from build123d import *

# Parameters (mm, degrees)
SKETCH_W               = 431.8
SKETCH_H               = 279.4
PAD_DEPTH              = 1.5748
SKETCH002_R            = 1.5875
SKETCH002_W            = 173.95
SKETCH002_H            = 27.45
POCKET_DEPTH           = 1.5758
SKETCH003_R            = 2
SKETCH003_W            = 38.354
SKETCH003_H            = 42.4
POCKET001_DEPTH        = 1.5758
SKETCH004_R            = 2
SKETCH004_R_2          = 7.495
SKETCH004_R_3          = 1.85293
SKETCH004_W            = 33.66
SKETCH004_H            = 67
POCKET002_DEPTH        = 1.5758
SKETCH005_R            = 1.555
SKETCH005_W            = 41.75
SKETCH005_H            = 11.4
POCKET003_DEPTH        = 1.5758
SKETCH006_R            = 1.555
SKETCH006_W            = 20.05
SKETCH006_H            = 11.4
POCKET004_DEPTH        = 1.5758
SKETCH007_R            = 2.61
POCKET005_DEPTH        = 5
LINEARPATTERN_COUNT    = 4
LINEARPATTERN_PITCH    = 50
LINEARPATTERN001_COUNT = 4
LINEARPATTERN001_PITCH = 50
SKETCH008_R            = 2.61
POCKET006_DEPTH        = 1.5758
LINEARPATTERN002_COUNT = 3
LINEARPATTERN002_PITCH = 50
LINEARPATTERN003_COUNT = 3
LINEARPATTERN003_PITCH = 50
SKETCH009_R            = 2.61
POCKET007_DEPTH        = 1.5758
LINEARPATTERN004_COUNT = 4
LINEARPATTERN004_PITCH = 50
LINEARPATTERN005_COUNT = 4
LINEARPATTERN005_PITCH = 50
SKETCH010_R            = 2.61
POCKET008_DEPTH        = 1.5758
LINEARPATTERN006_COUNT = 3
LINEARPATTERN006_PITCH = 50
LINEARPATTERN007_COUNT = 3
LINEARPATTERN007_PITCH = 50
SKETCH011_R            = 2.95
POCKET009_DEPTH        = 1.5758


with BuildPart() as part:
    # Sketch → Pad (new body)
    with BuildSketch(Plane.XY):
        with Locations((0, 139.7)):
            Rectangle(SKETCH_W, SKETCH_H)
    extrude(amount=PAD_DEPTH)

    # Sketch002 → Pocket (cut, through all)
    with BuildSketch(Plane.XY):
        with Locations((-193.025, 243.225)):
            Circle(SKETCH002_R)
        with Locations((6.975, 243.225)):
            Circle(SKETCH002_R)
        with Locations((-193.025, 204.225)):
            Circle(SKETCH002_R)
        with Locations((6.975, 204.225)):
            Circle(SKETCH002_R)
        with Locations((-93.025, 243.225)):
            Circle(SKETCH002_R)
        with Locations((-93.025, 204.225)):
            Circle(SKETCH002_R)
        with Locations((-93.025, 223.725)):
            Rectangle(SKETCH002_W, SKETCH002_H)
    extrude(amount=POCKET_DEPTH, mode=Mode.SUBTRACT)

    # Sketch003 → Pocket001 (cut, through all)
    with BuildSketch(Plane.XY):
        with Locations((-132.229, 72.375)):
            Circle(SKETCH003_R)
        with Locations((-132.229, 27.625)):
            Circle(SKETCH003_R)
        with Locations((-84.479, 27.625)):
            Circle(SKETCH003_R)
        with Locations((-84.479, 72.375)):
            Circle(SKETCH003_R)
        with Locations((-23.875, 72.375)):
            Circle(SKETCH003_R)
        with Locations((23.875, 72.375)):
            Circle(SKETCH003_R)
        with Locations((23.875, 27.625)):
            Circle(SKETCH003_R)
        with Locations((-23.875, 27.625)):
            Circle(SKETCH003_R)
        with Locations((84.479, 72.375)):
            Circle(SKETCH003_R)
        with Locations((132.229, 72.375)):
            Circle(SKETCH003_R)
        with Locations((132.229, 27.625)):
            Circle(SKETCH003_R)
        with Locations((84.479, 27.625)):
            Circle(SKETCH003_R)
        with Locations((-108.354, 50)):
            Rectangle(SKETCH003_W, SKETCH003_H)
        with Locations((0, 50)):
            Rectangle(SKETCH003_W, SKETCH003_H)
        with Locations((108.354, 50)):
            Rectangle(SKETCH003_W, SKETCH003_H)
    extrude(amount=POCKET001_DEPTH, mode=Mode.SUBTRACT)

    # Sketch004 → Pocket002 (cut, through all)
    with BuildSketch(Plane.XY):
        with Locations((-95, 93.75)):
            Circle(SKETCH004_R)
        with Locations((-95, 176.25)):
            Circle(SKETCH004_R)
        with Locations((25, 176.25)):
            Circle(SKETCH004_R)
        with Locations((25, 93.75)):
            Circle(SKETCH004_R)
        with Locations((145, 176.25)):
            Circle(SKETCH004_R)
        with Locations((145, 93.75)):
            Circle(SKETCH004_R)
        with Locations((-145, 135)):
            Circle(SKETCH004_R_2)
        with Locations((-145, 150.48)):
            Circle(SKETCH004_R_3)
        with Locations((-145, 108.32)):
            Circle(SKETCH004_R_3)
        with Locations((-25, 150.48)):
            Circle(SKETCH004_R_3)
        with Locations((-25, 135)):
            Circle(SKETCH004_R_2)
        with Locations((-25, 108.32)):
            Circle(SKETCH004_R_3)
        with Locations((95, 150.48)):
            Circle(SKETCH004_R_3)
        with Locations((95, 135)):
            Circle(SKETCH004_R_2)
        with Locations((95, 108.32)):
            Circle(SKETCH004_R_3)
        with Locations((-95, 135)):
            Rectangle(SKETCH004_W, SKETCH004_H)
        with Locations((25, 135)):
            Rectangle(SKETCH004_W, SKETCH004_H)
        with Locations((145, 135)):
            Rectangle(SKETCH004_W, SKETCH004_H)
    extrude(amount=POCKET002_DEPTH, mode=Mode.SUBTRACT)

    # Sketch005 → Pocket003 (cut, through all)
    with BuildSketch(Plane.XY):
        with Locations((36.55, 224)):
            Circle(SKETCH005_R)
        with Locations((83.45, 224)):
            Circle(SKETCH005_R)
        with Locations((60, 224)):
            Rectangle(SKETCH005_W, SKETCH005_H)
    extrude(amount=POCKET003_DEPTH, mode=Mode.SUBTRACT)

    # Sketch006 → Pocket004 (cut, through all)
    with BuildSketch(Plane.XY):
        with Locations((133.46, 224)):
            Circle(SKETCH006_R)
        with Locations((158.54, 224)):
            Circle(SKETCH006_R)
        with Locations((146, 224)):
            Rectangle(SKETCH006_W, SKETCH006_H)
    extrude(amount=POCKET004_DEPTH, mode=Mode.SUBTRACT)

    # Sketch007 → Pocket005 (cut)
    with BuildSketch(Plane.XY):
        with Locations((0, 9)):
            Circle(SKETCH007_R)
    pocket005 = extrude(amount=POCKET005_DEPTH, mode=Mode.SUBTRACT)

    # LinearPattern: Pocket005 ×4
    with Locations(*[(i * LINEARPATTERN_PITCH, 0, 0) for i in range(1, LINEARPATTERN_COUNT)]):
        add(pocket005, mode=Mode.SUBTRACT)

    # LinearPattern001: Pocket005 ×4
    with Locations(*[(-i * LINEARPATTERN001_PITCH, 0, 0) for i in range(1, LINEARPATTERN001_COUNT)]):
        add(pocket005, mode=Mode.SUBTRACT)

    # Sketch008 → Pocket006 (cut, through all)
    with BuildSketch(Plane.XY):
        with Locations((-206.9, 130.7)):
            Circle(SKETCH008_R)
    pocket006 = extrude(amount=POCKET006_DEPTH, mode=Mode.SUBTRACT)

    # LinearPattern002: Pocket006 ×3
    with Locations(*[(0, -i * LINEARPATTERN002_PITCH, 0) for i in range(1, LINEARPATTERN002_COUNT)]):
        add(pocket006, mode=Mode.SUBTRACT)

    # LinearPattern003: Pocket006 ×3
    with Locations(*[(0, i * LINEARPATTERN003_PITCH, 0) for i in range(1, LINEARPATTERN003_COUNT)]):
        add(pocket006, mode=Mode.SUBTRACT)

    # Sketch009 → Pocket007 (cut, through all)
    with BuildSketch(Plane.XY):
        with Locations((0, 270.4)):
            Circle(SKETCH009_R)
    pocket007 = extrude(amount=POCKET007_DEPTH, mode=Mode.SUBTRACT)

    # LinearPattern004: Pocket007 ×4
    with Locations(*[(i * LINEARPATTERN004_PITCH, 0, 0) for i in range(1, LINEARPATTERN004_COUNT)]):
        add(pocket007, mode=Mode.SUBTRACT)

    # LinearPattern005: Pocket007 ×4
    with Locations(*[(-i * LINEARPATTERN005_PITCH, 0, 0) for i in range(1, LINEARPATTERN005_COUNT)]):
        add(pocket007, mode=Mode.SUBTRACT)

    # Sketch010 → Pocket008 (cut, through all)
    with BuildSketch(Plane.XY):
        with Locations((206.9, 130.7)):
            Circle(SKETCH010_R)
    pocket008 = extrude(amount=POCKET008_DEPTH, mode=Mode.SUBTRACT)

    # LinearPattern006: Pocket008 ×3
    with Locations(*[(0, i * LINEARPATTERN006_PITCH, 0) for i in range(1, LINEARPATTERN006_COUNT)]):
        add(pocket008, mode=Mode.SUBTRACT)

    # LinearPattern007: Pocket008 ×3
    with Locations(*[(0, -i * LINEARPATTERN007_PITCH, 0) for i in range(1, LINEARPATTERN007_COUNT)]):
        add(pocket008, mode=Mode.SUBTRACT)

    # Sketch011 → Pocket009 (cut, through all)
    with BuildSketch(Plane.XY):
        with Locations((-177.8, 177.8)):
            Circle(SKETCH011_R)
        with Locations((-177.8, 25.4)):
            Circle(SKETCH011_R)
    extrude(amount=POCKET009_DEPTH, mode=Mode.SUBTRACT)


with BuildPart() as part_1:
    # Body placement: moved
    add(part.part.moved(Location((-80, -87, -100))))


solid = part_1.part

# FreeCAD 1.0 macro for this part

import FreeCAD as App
import Part
import Sketcher
from FreeCAD import Vector


def add_polygon(sketch, points):
    """Adds a closed chain of lines whose ends are joined by coincident constraints."""
    first, n = sketch.GeometryCount, len(points)
    for a, b in zip(points, points[1:] + points[:1]):
        sketch.addGeometry(Part.LineSegment(App.Vector(*a, 0), App.Vector(*b, 0)), False)
    for i in range(n):
        sketch.addConstraint(Sketcher.Constraint("Coincident", first + i, 2, first + (i + 1) % n, 1))

doc = App.newDocument("Part")
params = doc.addObject("Spreadsheet::Sheet", "Params")
for row, (alias, value) in enumerate([
    ("sketch1_width", "431.8 mm"),
    ("sketch1_height", "279.4 mm"),
    ("pad1_length", "1.5748 mm"),
    ("sketch2_width", "173.95 mm"),
    ("sketch2_height", "27.45 mm"),
    ("sketch3_diameter", "4 mm"),
    ("sketch3_height", "42.4 mm"),
    ("sketch4_diameter", "4 mm"),
    ("sketch4_diameter2", "14.99 mm"),
    ("sketch4_height", "67 mm"),
    ("sketch4_width", "33.66 mm"),
    ("sketch5_diameter", "3.11 mm"),
    ("sketch5_height", "11.4 mm"),
    ("sketch5_width", "41.75 mm"),
    ("sketch6_diameter", "3.11 mm"),
    ("sketch6_height", "11.4 mm"),
    ("sketch6_width", "20.05 mm"),
    ("sketch7_diameter", "5.22 mm"),
    ("pocket6_length", "5 mm"),
    ("linearpattern_pitch", "50 mm"),
    ("linearpattern2_pitch", "50 mm"),
    ("sketch8_diameter", "5.22 mm"),
    ("linearpattern3_pitch", "50 mm"),
    ("linearpattern4_pitch", "50 mm"),
    ("sketch9_diameter", "5.22 mm"),
    ("linearpattern5_pitch", "50 mm"),
    ("linearpattern6_pitch", "50 mm"),
    ("sketch10_diameter", "5.22 mm"),
    ("linearpattern7_pitch", "50 mm"),
    ("linearpattern8_pitch", "50 mm"),
    ("sketch11_diameter", "5.9 mm"),
], start=1):
    params.set(f"A{row}", alias)
    params.set(f"B{row}", "=" + value)
    params.setAlias(f"B{row}", alias)

body = doc.addObject("PartDesign::Body", "Body")

sketch1 = body.newObject("Sketcher::SketchObject", "Sketch")
sketch1.AttachmentSupport = (doc.getObject("XY_Plane"), [""])
sketch1.MapMode = "FlatFace"
add_polygon(sketch1, [(-216, 279), (-216, 0), (216, 0), (216, 279)])
sketch1.addConstraint([
    Sketcher.Constraint("Vertical", 0),
    Sketcher.Constraint("Horizontal", 1),
    Sketcher.Constraint("Vertical", 2),
    Sketcher.Constraint("Horizontal", 3),
    Sketcher.Constraint("Symmetric", 0, 2, 1, 2, -1, 1),
    Sketcher.Constraint("DistanceX", 1, 1, 1, 2, 431.8),
    Sketcher.Constraint("DistanceY", 0, 2, 0, 1, 279.4),
])
sketch1.setExpression("Constraints[9]", "Params.sketch1_width")
sketch1.setExpression("Constraints[10]", "Params.sketch1_height")
pad1 = body.newObject("PartDesign::Pad", "Pad")
pad1.Profile = sketch1
pad1.setExpression("Length", "Params.pad1_length")

sketch2 = body.newObject("Sketcher::SketchObject", "Sketch001")
sketch2.AttachmentSupport = (doc.getObject("XY_Plane"), [""])
sketch2.MapMode = "FlatFace"
sketch2.addGeometry(Part.Circle(Vector(-193, 243.2, 0), Vector(0, 0, 1), 1.6), False)
sketch2.addGeometry(Part.Circle(Vector(7, 243.2, 0), Vector(0, 0, 1), 1.6), False)
sketch2.addGeometry(Part.Circle(Vector(-193, 204.2, 0), Vector(0, 0, 1), 1.6), False)
sketch2.addGeometry(Part.Circle(Vector(7, 204.2, 0), Vector(0, 0, 1), 1.6), False)
sketch2.addGeometry(Part.Circle(Vector(-93, 243.2, 0), Vector(0, 0, 1), 1.6), False)
sketch2.addGeometry(Part.Circle(Vector(-93, 204.2, 0), Vector(0, 0, 1), 1.6), False)
add_polygon(sketch2, [(-180, 237.4), (-180, 210), (-6, 210), (-6, 237.4)])
sketch2.addConstraint([
    Sketcher.Constraint("Vertical", 6),
    Sketcher.Constraint("Horizontal", 7),
    Sketcher.Constraint("Vertical", 8),
    Sketcher.Constraint("Horizontal", 9),
    Sketcher.Constraint("Equal", 0, 1),
    Sketcher.Constraint("Equal", 1, 2),
    Sketcher.Constraint("Equal", 2, 3),
    Sketcher.Constraint("Equal", 3, 4),
    Sketcher.Constraint("Equal", 4, 5),
    Sketcher.Constraint("Horizontal", 0, 3, 1, 3),
    Sketcher.Constraint("Horizontal", 2, 3, 3, 3),
    Sketcher.Constraint("Horizontal", 1, 3, 4, 3),
    Sketcher.Constraint("Horizontal", 3, 3, 5, 3),
    Sketcher.Constraint("Vertical", 0, 3, 2, 3),
    Sketcher.Constraint("Vertical", 1, 3, 3, 3),
    Sketcher.Constraint("Vertical", 4, 3, 5, 3),
    Sketcher.Constraint("Diameter", 0, 3.175),
    Sketcher.Constraint("DistanceX", 6, 2, -1, 1, 180.0),
    Sketcher.Constraint("DistanceY", -1, 1, 6, 2, 210.0),
    Sketcher.Constraint("DistanceX", 0, 3, 1, 3, 200.0),
    Sketcher.Constraint("DistanceY", 2, 3, 0, 3, 39.0),
    Sketcher.Constraint("DistanceX", 0, 3, 4, 3, 100.0),
    Sketcher.Constraint("DistanceX", 7, 1, 7, 2, 173.95),
    Sketcher.Constraint("DistanceY", 6, 2, 6, 1, 27.45),
    Sketcher.Constraint("DistanceX", 0, 3, -1, 1, 193.025),
    Sketcher.Constraint("DistanceY", -1, 1, 0, 3, 243.225),
])
sketch2.setExpression("Constraints[26]", "Params.sketch2_width")
sketch2.setExpression("Constraints[27]", "Params.sketch2_height")
pocket1 = body.newObject("PartDesign::Pocket", "Pocket")
pocket1.Profile = sketch2
pocket1.Type = "ThroughAll"
pocket1.Reversed = True

sketch3 = body.newObject("Sketcher::SketchObject", "Sketch002")
sketch3.AttachmentSupport = (doc.getObject("XY_Plane"), [""])
sketch3.MapMode = "FlatFace"
sketch3.addGeometry(Part.Circle(Vector(-132.2, 72.4, 0), Vector(0, 0, 1), 2), False)
sketch3.addGeometry(Part.Circle(Vector(-132.2, 27.6, 0), Vector(0, 0, 1), 2), False)
sketch3.addGeometry(Part.Circle(Vector(-84.5, 27.6, 0), Vector(0, 0, 1), 2), False)
sketch3.addGeometry(Part.Circle(Vector(-84.5, 72.4, 0), Vector(0, 0, 1), 2), False)
sketch3.addGeometry(Part.Circle(Vector(-23.9, 72.4, 0), Vector(0, 0, 1), 2), False)
sketch3.addGeometry(Part.Circle(Vector(23.9, 72.4, 0), Vector(0, 0, 1), 2), False)
sketch3.addGeometry(Part.Circle(Vector(23.9, 27.6, 0), Vector(0, 0, 1), 2), False)
sketch3.addGeometry(Part.Circle(Vector(-23.9, 27.6, 0), Vector(0, 0, 1), 2), False)
sketch3.addGeometry(Part.Circle(Vector(84.5, 72.4, 0), Vector(0, 0, 1), 2), False)
sketch3.addGeometry(Part.Circle(Vector(132.2, 72.4, 0), Vector(0, 0, 1), 2), False)
sketch3.addGeometry(Part.Circle(Vector(132.2, 27.6, 0), Vector(0, 0, 1), 2), False)
sketch3.addGeometry(Part.Circle(Vector(84.5, 27.6, 0), Vector(0, 0, 1), 2), False)
add_polygon(sketch3, [(-127.5, 71.2), (-127.5, 28.8), (-89.2, 28.8), (-89.2, 71.2)])
add_polygon(sketch3, [(-19.2, 71.2), (-19.2, 28.8), (19.2, 28.8), (19.2, 71.2)])
add_polygon(sketch3, [(89.2, 71.2), (89.2, 28.8), (127.5, 28.8), (127.5, 71.2)])
sketch3.addConstraint([
    Sketcher.Constraint("Vertical", 12),
    Sketcher.Constraint("Horizontal", 13),
    Sketcher.Constraint("Vertical", 14),
    Sketcher.Constraint("Horizontal", 15),
    Sketcher.Constraint("Vertical", 16),
    Sketcher.Constraint("Horizontal", 17),
    Sketcher.Constraint("Vertical", 18),
    Sketcher.Constraint("Horizontal", 19),
    Sketcher.Constraint("Vertical", 20),
    Sketcher.Constraint("Horizontal", 21),
    Sketcher.Constraint("Vertical", 22),
    Sketcher.Constraint("Horizontal", 23),
    Sketcher.Constraint("Equal", 0, 1),
    Sketcher.Constraint("Equal", 1, 2),
    Sketcher.Constraint("Equal", 2, 3),
    Sketcher.Constraint("Equal", 3, 4),
    Sketcher.Constraint("Equal", 4, 5),
    Sketcher.Constraint("Equal", 5, 6),
    Sketcher.Constraint("Equal", 6, 7),
    Sketcher.Constraint("Equal", 7, 8),
    Sketcher.Constraint("Equal", 8, 9),
    Sketcher.Constraint("Equal", 9, 10),
    Sketcher.Constraint("Equal", 10, 11),
    Sketcher.Constraint("Symmetric", 4, 3, 5, 3, -2),
    Sketcher.Constraint("Symmetric", 6, 3, 7, 3, -2),
    Sketcher.Constraint("Symmetric", 3, 3, 8, 3, -2),
    Sketcher.Constraint("Symmetric", 0, 3, 9, 3, -2),
    Sketcher.Constraint("Symmetric", 1, 3, 10, 3, -2),
    Sketcher.Constraint("Symmetric", 2, 3, 11, 3, -2),
    Sketcher.Constraint("Symmetric", 13, 2, 20, 2, -2),
    Sketcher.Constraint("Symmetric", 15, 2, 22, 2, -2),
    Sketcher.Constraint("Horizontal", 1, 3, 2, 3),
    Sketcher.Constraint("Horizontal", 0, 3, 3, 3),
    Sketcher.Constraint("Horizontal", 3, 3, 4, 3),
    Sketcher.Constraint("Horizontal", 2, 3, 6, 3),
    Sketcher.Constraint("Horizontal", 13, 2, 16, 2),
    Sketcher.Constraint("Horizontal", 15, 2, 18, 2),
    Sketcher.Constraint("Vertical", 0, 3, 1, 3),
    Sketcher.Constraint("Vertical", 2, 3, 3, 3),
    Sketcher.Constraint("Vertical", 5, 3, 6, 3),
    Sketcher.Constraint("Equal", 15, 17),
    Sketcher.Constraint("Diameter", 0, 4.0),
    Sketcher.Constraint("DistanceY", 12, 2, 12, 1, 42.4),
    Sketcher.Constraint("DistanceY", -1, 1, 12, 2, 28.8),
    Sketcher.Constraint("DistanceX", 13, 1, 13, 2, 38.354),
    Sketcher.Constraint("DistanceY", 1, 3, 0, 3, 44.75),
    Sketcher.Constraint("DistanceX", 1, 3, 2, 3, 47.75),
    Sketcher.Constraint("DistanceX", 4, 3, 5, 3, 47.75),
    Sketcher.Constraint("DistanceX", 0, 3, -1, 1, 132.229),
    Sketcher.Constraint("DistanceY", -1, 1, 0, 3, 72.375),
    Sketcher.Constraint("DistanceX", 12, 2, -1, 1, 127.531),
    Sketcher.Constraint("DistanceX", 16, 2, -1, 1, 19.177),
])
sketch3.setExpression("Constraints[53]", "Params.sketch3_diameter")
sketch3.setExpression("Constraints[54]", "Params.sketch3_height")
pocket2 = body.newObject("PartDesign::Pocket", "Pocket001")
pocket2.Profile = sketch3
pocket2.Type = "ThroughAll"
pocket2.Reversed = True

sketch4 = body.newObject("Sketcher::SketchObject", "Sketch003")
sketch4.AttachmentSupport = (doc.getObject("XY_Plane"), [""])
sketch4.MapMode = "FlatFace"
sketch4.addGeometry(Part.Circle(Vector(-95, 93.8, 0), Vector(0, 0, 1), 2), False)
sketch4.addGeometry(Part.Circle(Vector(-95, 176.2, 0), Vector(0, 0, 1), 2), False)
sketch4.addGeometry(Part.Circle(Vector(25, 176.2, 0), Vector(0, 0, 1), 2), False)
sketch4.addGeometry(Part.Circle(Vector(25, 93.8, 0), Vector(0, 0, 1), 2), False)
sketch4.addGeometry(Part.Circle(Vector(145, 176.2, 0), Vector(0, 0, 1), 2), False)
sketch4.addGeometry(Part.Circle(Vector(145, 93.8, 0), Vector(0, 0, 1), 2), False)
sketch4.addGeometry(Part.Circle(Vector(-145, 135, 0), Vector(0, 0, 1), 7.5), False)
sketch4.addGeometry(Part.Circle(Vector(-145, 150.5, 0), Vector(0, 0, 1), 1.9), False)
sketch4.addGeometry(Part.Circle(Vector(-145, 108.3, 0), Vector(0, 0, 1), 1.9), False)
sketch4.addGeometry(Part.Circle(Vector(-25, 150.5, 0), Vector(0, 0, 1), 1.9), False)
sketch4.addGeometry(Part.Circle(Vector(-25, 135, 0), Vector(0, 0, 1), 7.5), False)
sketch4.addGeometry(Part.Circle(Vector(-25, 108.3, 0), Vector(0, 0, 1), 1.9), False)
sketch4.addGeometry(Part.Circle(Vector(95, 150.5, 0), Vector(0, 0, 1), 1.9), False)
sketch4.addGeometry(Part.Circle(Vector(95, 135, 0), Vector(0, 0, 1), 7.5), False)
sketch4.addGeometry(Part.Circle(Vector(95, 108.3, 0), Vector(0, 0, 1), 1.9), False)
add_polygon(sketch4, [(-111.8, 168.5), (-111.8, 101.5), (-78.2, 101.5), (-78.2, 168.5)])
add_polygon(sketch4, [(8.2, 168.5), (8.2, 101.5), (41.8, 101.5), (41.8, 168.5)])
add_polygon(sketch4, [(128.2, 168.5), (128.2, 101.5), (161.8, 101.5), (161.8, 168.5)])
sketch4.addConstraint([
    Sketcher.Constraint("Vertical", 15),
    Sketcher.Constraint("Horizontal", 16),
    Sketcher.Constraint("Vertical", 17),
    Sketcher.Constraint("Horizontal", 18),
    Sketcher.Constraint("Vertical", 19),
    Sketcher.Constraint("Horizontal", 20),
    Sketcher.Constraint("Vertical", 21),
    Sketcher.Constraint("Horizontal", 22),
    Sketcher.Constraint("Vertical", 23),
    Sketcher.Constraint("Horizontal", 24),
    Sketcher.Constraint("Vertical", 25),
    Sketcher.Constraint("Horizontal", 26),
    Sketcher.Constraint("Equal", 0, 1),
    Sketcher.Constraint("Equal", 1, 2),
    Sketcher.Constraint("Equal", 2, 3),
    Sketcher.Constraint("Equal", 3, 4),
    Sketcher.Constraint("Equal", 4, 5),
    Sketcher.Constraint("Equal", 7, 8),
    Sketcher.Constraint("Equal", 8, 9),
    Sketcher.Constraint("Equal", 6, 10),
    Sketcher.Constraint("Equal", 9, 11),
    Sketcher.Constraint("Equal", 11, 12),
    Sketcher.Constraint("Equal", 10, 13),
    Sketcher.Constraint("Equal", 12, 14),
    Sketcher.Constraint("Horizontal", 1, 3, 2, 3),
    Sketcher.Constraint("Horizontal", 0, 3, 3, 3),
    Sketcher.Constraint("Horizontal", 2, 3, 4, 3),
    Sketcher.Constraint("Horizontal", 3, 3, 5, 3),
    Sketcher.Constraint("Horizontal", 7, 3, 9, 3),
    Sketcher.Constraint("Horizontal", 6, 3, 10, 3),
    Sketcher.Constraint("Horizontal", 8, 3, 11, 3),
    Sketcher.Constraint("Horizontal", 9, 3, 12, 3),
    Sketcher.Constraint("Horizontal", 10, 3, 13, 3),
    Sketcher.Constraint("Horizontal", 11, 3, 14, 3),
    Sketcher.Constraint("Horizontal", 16, 2, 19, 2),
    Sketcher.Constraint("Horizontal", 18, 2, 21, 2),
    Sketcher.Constraint("Horizontal", 20, 2, 23, 2),
    Sketcher.Constraint("Horizontal", 22, 2, 25, 2),
    Sketcher.Constraint("Vertical", 0, 3, 1, 3),
    Sketcher.Constraint("Vertical", 2, 3, 3, 3),
    Sketcher.Constraint("Vertical", 4, 3, 5, 3),
    Sketcher.Constraint("Vertical", 6, 3, 7, 3),
    Sketcher.Constraint("Vertical", 7, 3, 8, 3),
    Sketcher.Constraint("Vertical", 9, 3, 10, 3),
    Sketcher.Constraint("Vertical", 10, 3, 11, 3),
    Sketcher.Constraint("Vertical", 12, 3, 13, 3),
    Sketcher.Constraint("Vertical", 13, 3, 14, 3),
    Sketcher.Constraint("Equal", 18, 20),
    Sketcher.Constraint("Equal", 22, 24),
    Sketcher.Constraint("Diameter", 0, 4.0),
    Sketcher.Constraint("Diameter", 6, 14.99),
    Sketcher.Constraint("DistanceY", 15, 2, 15, 1, 67.0),
    Sketcher.Constraint("DistanceX", 0, 3, -1, 1, 95.0),
    Sketcher.Constraint("DistanceX", -1, 1, 2, 3, 25.0),
    Sketcher.Constraint("DistanceX", -1, 1, 4, 3, 145.0),
    Sketcher.Constraint("DistanceX", 6, 3, -1, 1, 145.0),
    Sketcher.Constraint("DistanceY", -1, 1, 6, 3, 135.0),
    Sketcher.Constraint("DistanceX", 9, 3, -1, 1, 25.0),
    Sketcher.Constraint("DistanceX", -1, 1, 12, 3, 95.0),
    Sketcher.Constraint("DistanceX", 16, 1, 16, 2, 33.66),
    Sketcher.Constraint("DistanceY", -1, 1, 15, 2, 101.5),
    Sketcher.Constraint("DistanceY", 0, 3, 1, 3, 82.5),
    Sketcher.Constraint("Diameter", 7, 3.70586),
    Sketcher.Constraint("DistanceY", -1, 1, 0, 3, 93.75),
    Sketcher.Constraint("DistanceY", -1, 1, 7, 3, 150.48),
    Sketcher.Constraint("DistanceY", -1, 1, 8, 3, 108.32),
    Sketcher.Constraint("DistanceX", 15, 2, -1, 1, 111.83),
    Sketcher.Constraint("DistanceX", -1, 1, 19, 2, 8.17),
    Sketcher.Constraint("DistanceX", -1, 1, 23, 2, 128.17),
])
sketch4.setExpression("Constraints[61]", "Params.sketch4_diameter")
sketch4.setExpression("Constraints[62]", "Params.sketch4_diameter2")
sketch4.setExpression("Constraints[63]", "Params.sketch4_height")
sketch4.setExpression("Constraints[71]", "Params.sketch4_width")
pocket3 = body.newObject("PartDesign::Pocket", "Pocket002")
pocket3.Profile = sketch4
pocket3.Type = "ThroughAll"
pocket3.Reversed = True

sketch5 = body.newObject("Sketcher::SketchObject", "Sketch004")
sketch5.AttachmentSupport = (doc.getObject("XY_Plane"), [""])
sketch5.MapMode = "FlatFace"
sketch5.addGeometry(Part.Circle(Vector(36.5, 224, 0), Vector(0, 0, 1), 1.6), False)
sketch5.addGeometry(Part.Circle(Vector(83.5, 224, 0), Vector(0, 0, 1), 1.6), False)
add_polygon(sketch5, [(39.1, 229.7), (39.1, 218.3), (80.9, 218.3), (80.9, 229.7)])
sketch5.addConstraint([
    Sketcher.Constraint("Vertical", 2),
    Sketcher.Constraint("Horizontal", 3),
    Sketcher.Constraint("Vertical", 4),
    Sketcher.Constraint("Horizontal", 5),
    Sketcher.Constraint("Equal", 0, 1),
    Sketcher.Constraint("Horizontal", 0, 3, 1, 3),
    Sketcher.Constraint("Diameter", 0, 3.11),
    Sketcher.Constraint("DistanceY", 2, 2, 2, 1, 11.4),
    Sketcher.Constraint("DistanceY", -1, 1, 0, 3, 224.0),
    Sketcher.Constraint("DistanceX", 3, 1, 3, 2, 41.75),
    Sketcher.Constraint("DistanceY", -1, 1, 2, 2, 218.3),
    Sketcher.Constraint("DistanceX", 0, 3, 1, 3, 46.9),
    Sketcher.Constraint("DistanceX", -1, 1, 0, 3, 36.55),
    Sketcher.Constraint("DistanceX", -1, 1, 2, 2, 39.125),
])
sketch5.setExpression("Constraints[10]", "Params.sketch5_diameter")
sketch5.setExpression("Constraints[11]", "Params.sketch5_height")
sketch5.setExpression("Constraints[13]", "Params.sketch5_width")
pocket4 = body.newObject("PartDesign::Pocket", "Pocket003")
pocket4.Profile = sketch5
pocket4.Type = "ThroughAll"
pocket4.Reversed = True

sketch6 = body.newObject("Sketcher::SketchObject", "Sketch005")
sketch6.AttachmentSupport = (doc.getObject("XY_Plane"), [""])
sketch6.MapMode = "FlatFace"
sketch6.addGeometry(Part.Circle(Vector(133.5, 224, 0), Vector(0, 0, 1), 1.6), False)
sketch6.addGeometry(Part.Circle(Vector(158.5, 224, 0), Vector(0, 0, 1), 1.6), False)
add_polygon(sketch6, [(136, 229.7), (136, 218.3), (156, 218.3), (156, 229.7)])
sketch6.addConstraint([
    Sketcher.Constraint("Vertical", 2),
    Sketcher.Constraint("Horizontal", 3),
    Sketcher.Constraint("Vertical", 4),
    Sketcher.Constraint("Horizontal", 5),
    Sketcher.Constraint("Equal", 0, 1),
    Sketcher.Constraint("Horizontal", 0, 3, 1, 3),
    Sketcher.Constraint("Diameter", 0, 3.11),
    Sketcher.Constraint("DistanceY", 2, 2, 2, 1, 11.4),
    Sketcher.Constraint("DistanceY", -1, 1, 0, 3, 224.0),
    Sketcher.Constraint("DistanceX", 3, 1, 3, 2, 20.05),
    Sketcher.Constraint("DistanceY", -1, 1, 2, 2, 218.3),
    Sketcher.Constraint("DistanceX", -1, 1, 0, 3, 133.46),
    Sketcher.Constraint("DistanceX", -1, 1, 1, 3, 158.54),
    Sketcher.Constraint("DistanceX", -1, 1, 2, 2, 135.975),
])
sketch6.setExpression("Constraints[10]", "Params.sketch6_diameter")
sketch6.setExpression("Constraints[11]", "Params.sketch6_height")
sketch6.setExpression("Constraints[13]", "Params.sketch6_width")
pocket5 = body.newObject("PartDesign::Pocket", "Pocket004")
pocket5.Profile = sketch6
pocket5.Type = "ThroughAll"
pocket5.Reversed = True

sketch7 = body.newObject("Sketcher::SketchObject", "Sketch006")
sketch7.AttachmentSupport = (doc.getObject("XY_Plane"), [""])
sketch7.MapMode = "FlatFace"
sketch7.addGeometry(Part.Circle(Vector(0, 9, 0), Vector(0, 0, 1), 2.6), False)
sketch7.addConstraint([
    Sketcher.Constraint("PointOnObject", 0, 3, -2),
    Sketcher.Constraint("Diameter", 0, 5.22),
    Sketcher.Constraint("DistanceY", -1, 1, 0, 3, 9.0),
])
sketch7.setExpression("Constraints[1]", "Params.sketch7_diameter")
pocket6 = body.newObject("PartDesign::Pocket", "Pocket005")
pocket6.Profile = sketch7
pocket6.setExpression("Length", "Params.pocket6_length")
pocket6.Reversed = True
doc.recompute()

linearpattern = body.newObject("PartDesign::LinearPattern", "LinearPattern")
linearpattern.Originals = [pocket6]
linearpattern.Direction = (doc.getObject("X_Axis"), [""])
linearpattern.Mode = "offset"
linearpattern.setExpression("Offset", "Params.linearpattern_pitch")
linearpattern.Occurrences = 4
body.Tip = linearpattern
doc.recompute()

linearpattern2 = body.newObject("PartDesign::LinearPattern", "LinearPattern001")
linearpattern2.Originals = [pocket6]
linearpattern2.Direction = (doc.getObject("X_Axis"), [""])
linearpattern2.Mode = "offset"
linearpattern2.setExpression("Offset", "Params.linearpattern2_pitch")
linearpattern2.Occurrences = 4
linearpattern2.Reversed = True
body.Tip = linearpattern2

sketch8 = body.newObject("Sketcher::SketchObject", "Sketch007")
sketch8.AttachmentSupport = (doc.getObject("XY_Plane"), [""])
sketch8.MapMode = "FlatFace"
sketch8.addGeometry(Part.Circle(Vector(-206.9, 130.7, 0), Vector(0, 0, 1), 2.6), False)
sketch8.addConstraint([
    Sketcher.Constraint("Diameter", 0, 5.22),
    Sketcher.Constraint("DistanceX", 0, 3, -1, 1, 206.9),
    Sketcher.Constraint("DistanceY", -1, 1, 0, 3, 130.7),
])
sketch8.setExpression("Constraints[0]", "Params.sketch8_diameter")
pocket7 = body.newObject("PartDesign::Pocket", "Pocket006")
pocket7.Profile = sketch8
pocket7.Type = "ThroughAll"
pocket7.Reversed = True
doc.recompute()

linearpattern3 = body.newObject("PartDesign::LinearPattern", "LinearPattern002")
linearpattern3.Originals = [pocket7]
linearpattern3.Direction = (doc.getObject("Y_Axis"), [""])
linearpattern3.Mode = "offset"
linearpattern3.setExpression("Offset", "Params.linearpattern3_pitch")
linearpattern3.Occurrences = 3
linearpattern3.Reversed = True
body.Tip = linearpattern3
doc.recompute()

linearpattern4 = body.newObject("PartDesign::LinearPattern", "LinearPattern003")
linearpattern4.Originals = [pocket7]
linearpattern4.Direction = (doc.getObject("Y_Axis"), [""])
linearpattern4.Mode = "offset"
linearpattern4.setExpression("Offset", "Params.linearpattern4_pitch")
linearpattern4.Occurrences = 3
body.Tip = linearpattern4

sketch9 = body.newObject("Sketcher::SketchObject", "Sketch008")
sketch9.AttachmentSupport = (doc.getObject("XY_Plane"), [""])
sketch9.MapMode = "FlatFace"
sketch9.addGeometry(Part.Circle(Vector(0, 270.4, 0), Vector(0, 0, 1), 2.6), False)
sketch9.addConstraint([
    Sketcher.Constraint("PointOnObject", 0, 3, -2),
    Sketcher.Constraint("Diameter", 0, 5.22),
    Sketcher.Constraint("DistanceY", -1, 1, 0, 3, 270.4),
])
sketch9.setExpression("Constraints[1]", "Params.sketch9_diameter")
pocket8 = body.newObject("PartDesign::Pocket", "Pocket007")
pocket8.Profile = sketch9
pocket8.Type = "ThroughAll"
pocket8.Reversed = True
doc.recompute()

linearpattern5 = body.newObject("PartDesign::LinearPattern", "LinearPattern004")
linearpattern5.Originals = [pocket8]
linearpattern5.Direction = (doc.getObject("X_Axis"), [""])
linearpattern5.Mode = "offset"
linearpattern5.setExpression("Offset", "Params.linearpattern5_pitch")
linearpattern5.Occurrences = 4
body.Tip = linearpattern5
doc.recompute()

linearpattern6 = body.newObject("PartDesign::LinearPattern", "LinearPattern005")
linearpattern6.Originals = [pocket8]
linearpattern6.Direction = (doc.getObject("X_Axis"), [""])
linearpattern6.Mode = "offset"
linearpattern6.setExpression("Offset", "Params.linearpattern6_pitch")
linearpattern6.Occurrences = 4
linearpattern6.Reversed = True
body.Tip = linearpattern6

sketch10 = body.newObject("Sketcher::SketchObject", "Sketch009")
sketch10.AttachmentSupport = (doc.getObject("XY_Plane"), [""])
sketch10.MapMode = "FlatFace"
sketch10.addGeometry(Part.Circle(Vector(206.9, 130.7, 0), Vector(0, 0, 1), 2.6), False)
sketch10.addConstraint([
    Sketcher.Constraint("Diameter", 0, 5.22),
    Sketcher.Constraint("DistanceX", -1, 1, 0, 3, 206.9),
    Sketcher.Constraint("DistanceY", -1, 1, 0, 3, 130.7),
])
sketch10.setExpression("Constraints[0]", "Params.sketch10_diameter")
pocket9 = body.newObject("PartDesign::Pocket", "Pocket008")
pocket9.Profile = sketch10
pocket9.Type = "ThroughAll"
pocket9.Reversed = True
doc.recompute()

linearpattern7 = body.newObject("PartDesign::LinearPattern", "LinearPattern006")
linearpattern7.Originals = [pocket9]
linearpattern7.Direction = (doc.getObject("Y_Axis"), [""])
linearpattern7.Mode = "offset"
linearpattern7.setExpression("Offset", "Params.linearpattern7_pitch")
linearpattern7.Occurrences = 3
body.Tip = linearpattern7
doc.recompute()

linearpattern8 = body.newObject("PartDesign::LinearPattern", "LinearPattern007")
linearpattern8.Originals = [pocket9]
linearpattern8.Direction = (doc.getObject("Y_Axis"), [""])
linearpattern8.Mode = "offset"
linearpattern8.setExpression("Offset", "Params.linearpattern8_pitch")
linearpattern8.Occurrences = 3
linearpattern8.Reversed = True
body.Tip = linearpattern8

sketch11 = body.newObject("Sketcher::SketchObject", "Sketch010")
sketch11.AttachmentSupport = (doc.getObject("XY_Plane"), [""])
sketch11.MapMode = "FlatFace"
sketch11.addGeometry([
    Part.Circle(Vector(-177.8, 177.8, 0), Vector(0, 0, 1), 3),
    Part.Circle(Vector(-177.8, 25.4, 0), Vector(0, 0, 1), 3),
], False)
sketch11.addConstraint([
    Sketcher.Constraint("Equal", 0, 1),
    Sketcher.Constraint("Vertical", 0, 3, 1, 3),
    Sketcher.Constraint("Diameter", 0, 5.9),
    Sketcher.Constraint("DistanceX", 0, 3, -1, 1, 177.8),
    Sketcher.Constraint("DistanceY", -1, 1, 0, 3, 177.8),
    Sketcher.Constraint("DistanceY", -1, 1, 1, 3, 25.4),
])
sketch11.setExpression("Constraints[2]", "Params.sketch11_diameter")
pocket10 = body.newObject("PartDesign::Pocket", "Pocket009")
pocket10.Profile = sketch11
pocket10.Type = "ThroughAll"
pocket10.Reversed = True
body2 = doc.addObject("PartDesign::Body", "Body001")
doc.recompute()

body.Placement = App.Placement(Vector(-80, -87, -100), App.Rotation(Vector(0, 0, 1), 0))
boolean = body2.newObject("PartDesign::Boolean", "Boolean")
boolean.Type = "Fuse"
boolean.addObjects([body])

doc.recompute()
